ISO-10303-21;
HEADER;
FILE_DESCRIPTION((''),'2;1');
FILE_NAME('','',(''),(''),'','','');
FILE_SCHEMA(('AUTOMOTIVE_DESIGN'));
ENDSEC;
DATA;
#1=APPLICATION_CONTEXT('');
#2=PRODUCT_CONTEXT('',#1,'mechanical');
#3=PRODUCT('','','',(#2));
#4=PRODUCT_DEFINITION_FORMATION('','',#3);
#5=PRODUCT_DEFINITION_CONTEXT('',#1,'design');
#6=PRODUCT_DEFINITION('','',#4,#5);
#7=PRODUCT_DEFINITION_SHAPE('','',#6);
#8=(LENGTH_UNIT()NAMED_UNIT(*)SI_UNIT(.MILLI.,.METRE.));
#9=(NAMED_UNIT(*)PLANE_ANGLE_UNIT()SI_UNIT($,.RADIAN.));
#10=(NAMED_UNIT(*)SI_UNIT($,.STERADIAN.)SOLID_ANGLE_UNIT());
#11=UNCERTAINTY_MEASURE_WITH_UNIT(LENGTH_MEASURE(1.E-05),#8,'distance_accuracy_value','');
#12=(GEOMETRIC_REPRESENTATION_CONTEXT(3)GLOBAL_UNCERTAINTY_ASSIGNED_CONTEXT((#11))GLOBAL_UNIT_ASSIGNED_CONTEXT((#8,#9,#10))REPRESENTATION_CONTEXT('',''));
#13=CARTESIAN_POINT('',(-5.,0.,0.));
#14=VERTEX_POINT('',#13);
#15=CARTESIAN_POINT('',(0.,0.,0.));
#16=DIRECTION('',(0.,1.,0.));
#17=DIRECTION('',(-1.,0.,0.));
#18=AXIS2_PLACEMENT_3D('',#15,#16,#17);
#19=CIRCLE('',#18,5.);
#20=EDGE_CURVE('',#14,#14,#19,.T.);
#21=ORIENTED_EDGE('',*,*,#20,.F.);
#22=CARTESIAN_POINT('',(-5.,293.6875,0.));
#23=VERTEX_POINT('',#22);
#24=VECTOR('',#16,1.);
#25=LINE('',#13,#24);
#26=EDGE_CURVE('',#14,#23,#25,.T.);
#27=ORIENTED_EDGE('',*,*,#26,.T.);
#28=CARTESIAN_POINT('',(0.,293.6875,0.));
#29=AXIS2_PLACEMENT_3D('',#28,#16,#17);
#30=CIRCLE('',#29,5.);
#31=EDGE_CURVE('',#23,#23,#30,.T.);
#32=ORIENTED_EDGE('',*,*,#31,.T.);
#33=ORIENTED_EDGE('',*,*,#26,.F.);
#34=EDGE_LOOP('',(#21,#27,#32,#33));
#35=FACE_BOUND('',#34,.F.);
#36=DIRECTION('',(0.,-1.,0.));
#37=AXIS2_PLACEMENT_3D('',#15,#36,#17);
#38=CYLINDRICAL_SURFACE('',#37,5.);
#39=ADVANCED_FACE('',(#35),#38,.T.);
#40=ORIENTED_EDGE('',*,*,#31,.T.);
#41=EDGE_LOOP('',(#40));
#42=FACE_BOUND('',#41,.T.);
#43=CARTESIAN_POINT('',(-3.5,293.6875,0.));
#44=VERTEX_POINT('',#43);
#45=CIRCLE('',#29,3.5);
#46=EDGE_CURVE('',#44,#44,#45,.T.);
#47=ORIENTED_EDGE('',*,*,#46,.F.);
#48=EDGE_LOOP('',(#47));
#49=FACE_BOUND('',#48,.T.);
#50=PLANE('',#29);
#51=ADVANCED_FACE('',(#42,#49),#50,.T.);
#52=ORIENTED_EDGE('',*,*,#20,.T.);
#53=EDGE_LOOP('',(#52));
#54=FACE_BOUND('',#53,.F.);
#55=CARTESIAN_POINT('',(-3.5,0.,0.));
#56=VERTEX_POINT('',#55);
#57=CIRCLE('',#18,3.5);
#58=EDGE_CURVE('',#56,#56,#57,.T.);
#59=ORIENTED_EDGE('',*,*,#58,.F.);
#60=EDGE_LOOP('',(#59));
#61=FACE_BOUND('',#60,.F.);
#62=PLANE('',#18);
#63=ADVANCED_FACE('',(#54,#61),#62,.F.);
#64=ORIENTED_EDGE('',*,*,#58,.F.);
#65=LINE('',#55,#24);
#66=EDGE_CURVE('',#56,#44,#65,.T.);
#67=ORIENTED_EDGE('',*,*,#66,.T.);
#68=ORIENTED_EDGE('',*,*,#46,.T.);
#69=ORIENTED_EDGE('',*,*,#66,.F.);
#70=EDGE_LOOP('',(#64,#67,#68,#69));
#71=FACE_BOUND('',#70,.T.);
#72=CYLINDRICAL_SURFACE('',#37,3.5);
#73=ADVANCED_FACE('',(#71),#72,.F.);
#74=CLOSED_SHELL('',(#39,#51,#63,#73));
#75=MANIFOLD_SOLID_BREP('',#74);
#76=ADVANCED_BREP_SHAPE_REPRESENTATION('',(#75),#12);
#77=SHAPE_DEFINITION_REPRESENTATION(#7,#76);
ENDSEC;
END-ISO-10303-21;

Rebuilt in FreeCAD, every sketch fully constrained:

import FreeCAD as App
import Part
import Sketcher
from FreeCAD import Vector
Q = App.Units.Quantity

doc = App.newDocument("Part")
body = doc.addObject("PartDesign::Body", "Body")

# Sketch on XZ plane
sketch1 = body.newObject("Sketcher::SketchObject", "Sketch")
sketch1.AttachmentSupport = (doc.getObject("XZ_Plane"), [""])
sketch1.MapMode = "FlatFace"
sketch1.addGeometry(Part.Circle(Vector(0, 0, 0), Vector(0, 0, 1), 5), False)
sketch1.addGeometry(Part.Circle(Vector(0, 0, 0), Vector(0, 0, 1), 3.5), False)
sketch1.addConstraint(Sketcher.Constraint("Coincident", 0, 3, -1, 1))
sketch1.addConstraint(Sketcher.Constraint("Coincident", 1, 3, -1, 1))
sketch1.addConstraint(Sketcher.Constraint("Diameter", 0, Q("0.3937 in")))
sketch1.addConstraint(Sketcher.Constraint("Diameter", 1, Q("0.2756 in")))
pad1 = body.newObject("PartDesign::Pad", "Pad")
pad1.Profile = sketch1
pad1.Length = Q("11.5625 in")
pad1.Reversed = True

doc.recompute()
